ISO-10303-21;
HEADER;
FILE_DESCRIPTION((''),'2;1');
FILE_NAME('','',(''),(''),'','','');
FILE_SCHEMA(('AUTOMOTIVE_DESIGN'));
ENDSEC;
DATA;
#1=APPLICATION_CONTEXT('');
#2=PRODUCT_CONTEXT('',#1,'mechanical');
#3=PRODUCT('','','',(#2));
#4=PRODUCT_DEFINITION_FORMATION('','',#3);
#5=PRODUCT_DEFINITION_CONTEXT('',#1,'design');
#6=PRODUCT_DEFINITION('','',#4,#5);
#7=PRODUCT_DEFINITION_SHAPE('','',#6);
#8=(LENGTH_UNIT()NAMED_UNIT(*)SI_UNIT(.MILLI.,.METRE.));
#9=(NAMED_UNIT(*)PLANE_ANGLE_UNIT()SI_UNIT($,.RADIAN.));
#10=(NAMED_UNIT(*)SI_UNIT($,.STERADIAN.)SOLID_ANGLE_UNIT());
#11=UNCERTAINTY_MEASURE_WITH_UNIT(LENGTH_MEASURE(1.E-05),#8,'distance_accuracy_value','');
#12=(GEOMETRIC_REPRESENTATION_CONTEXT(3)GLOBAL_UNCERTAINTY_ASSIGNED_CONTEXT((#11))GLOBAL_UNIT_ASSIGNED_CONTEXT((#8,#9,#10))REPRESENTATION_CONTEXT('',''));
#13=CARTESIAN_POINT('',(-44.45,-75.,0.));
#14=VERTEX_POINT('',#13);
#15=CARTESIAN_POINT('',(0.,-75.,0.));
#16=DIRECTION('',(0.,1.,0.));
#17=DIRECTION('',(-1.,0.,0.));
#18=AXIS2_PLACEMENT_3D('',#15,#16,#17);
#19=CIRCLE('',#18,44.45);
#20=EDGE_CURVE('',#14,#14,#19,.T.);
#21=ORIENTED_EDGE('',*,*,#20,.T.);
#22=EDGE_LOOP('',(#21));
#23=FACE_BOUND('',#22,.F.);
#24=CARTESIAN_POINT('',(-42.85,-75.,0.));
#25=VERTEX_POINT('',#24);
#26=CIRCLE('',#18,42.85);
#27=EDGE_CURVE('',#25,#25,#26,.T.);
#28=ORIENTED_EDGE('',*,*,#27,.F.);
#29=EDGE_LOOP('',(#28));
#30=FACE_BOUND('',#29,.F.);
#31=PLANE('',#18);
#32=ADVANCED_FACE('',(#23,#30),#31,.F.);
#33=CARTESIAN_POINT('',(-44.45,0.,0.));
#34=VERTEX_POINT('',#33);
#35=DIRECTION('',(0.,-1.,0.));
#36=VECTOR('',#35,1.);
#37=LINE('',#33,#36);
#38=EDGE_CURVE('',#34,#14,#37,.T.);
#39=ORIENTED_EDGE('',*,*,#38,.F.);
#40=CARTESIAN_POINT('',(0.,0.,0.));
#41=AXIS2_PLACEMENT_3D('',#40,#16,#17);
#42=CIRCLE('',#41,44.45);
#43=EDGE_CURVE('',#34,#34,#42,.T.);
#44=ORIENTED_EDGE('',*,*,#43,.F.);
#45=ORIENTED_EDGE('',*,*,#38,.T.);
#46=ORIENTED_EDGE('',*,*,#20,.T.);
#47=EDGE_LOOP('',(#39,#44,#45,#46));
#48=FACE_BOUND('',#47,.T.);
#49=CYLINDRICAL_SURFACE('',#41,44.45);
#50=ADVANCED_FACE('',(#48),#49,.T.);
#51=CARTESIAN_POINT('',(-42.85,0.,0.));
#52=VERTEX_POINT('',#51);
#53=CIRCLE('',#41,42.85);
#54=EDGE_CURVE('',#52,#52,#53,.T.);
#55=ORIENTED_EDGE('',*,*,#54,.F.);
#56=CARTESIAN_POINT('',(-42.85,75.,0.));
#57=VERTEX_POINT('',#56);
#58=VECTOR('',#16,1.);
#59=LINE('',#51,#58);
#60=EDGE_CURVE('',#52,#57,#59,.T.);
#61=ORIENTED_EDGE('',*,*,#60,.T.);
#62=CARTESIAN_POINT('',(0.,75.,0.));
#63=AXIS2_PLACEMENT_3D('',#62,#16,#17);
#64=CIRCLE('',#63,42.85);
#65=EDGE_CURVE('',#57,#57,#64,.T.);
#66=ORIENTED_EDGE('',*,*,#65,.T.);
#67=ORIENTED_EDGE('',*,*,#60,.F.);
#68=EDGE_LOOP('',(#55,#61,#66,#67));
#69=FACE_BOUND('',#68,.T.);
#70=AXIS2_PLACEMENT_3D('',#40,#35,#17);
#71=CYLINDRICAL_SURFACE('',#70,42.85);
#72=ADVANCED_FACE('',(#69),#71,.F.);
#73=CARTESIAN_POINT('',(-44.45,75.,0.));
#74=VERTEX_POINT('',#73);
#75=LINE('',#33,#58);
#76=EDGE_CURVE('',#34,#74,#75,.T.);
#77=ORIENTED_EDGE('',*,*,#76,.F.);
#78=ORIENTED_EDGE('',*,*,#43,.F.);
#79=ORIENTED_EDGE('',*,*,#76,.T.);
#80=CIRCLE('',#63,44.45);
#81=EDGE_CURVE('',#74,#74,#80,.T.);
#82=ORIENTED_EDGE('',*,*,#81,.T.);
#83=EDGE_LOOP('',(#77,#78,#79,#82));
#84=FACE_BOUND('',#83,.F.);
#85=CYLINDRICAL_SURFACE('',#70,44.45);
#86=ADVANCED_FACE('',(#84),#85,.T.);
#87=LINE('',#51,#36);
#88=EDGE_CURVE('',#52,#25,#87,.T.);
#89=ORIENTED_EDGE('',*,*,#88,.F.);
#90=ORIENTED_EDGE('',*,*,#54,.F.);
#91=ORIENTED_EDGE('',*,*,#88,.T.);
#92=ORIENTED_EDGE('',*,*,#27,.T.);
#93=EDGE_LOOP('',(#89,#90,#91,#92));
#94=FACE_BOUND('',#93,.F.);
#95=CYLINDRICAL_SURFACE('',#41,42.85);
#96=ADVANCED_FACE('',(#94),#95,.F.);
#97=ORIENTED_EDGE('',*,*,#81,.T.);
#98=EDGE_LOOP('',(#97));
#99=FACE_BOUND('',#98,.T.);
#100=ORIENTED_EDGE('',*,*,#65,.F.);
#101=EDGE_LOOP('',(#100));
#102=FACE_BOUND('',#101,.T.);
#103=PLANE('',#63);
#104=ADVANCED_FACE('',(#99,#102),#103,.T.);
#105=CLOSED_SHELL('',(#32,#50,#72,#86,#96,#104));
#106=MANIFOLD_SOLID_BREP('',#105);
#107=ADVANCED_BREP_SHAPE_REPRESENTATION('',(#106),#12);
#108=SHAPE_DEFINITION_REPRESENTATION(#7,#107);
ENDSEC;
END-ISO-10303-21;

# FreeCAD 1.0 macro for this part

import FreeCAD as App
import Part
import Sketcher

doc = App.newDocument("Part")
body = doc.addObject("PartDesign::Body", "Body")

sketch1 = body.newObject("Sketcher::SketchObject", "Sketch")
sketch1.AttachmentSupport = (doc.getObject("XZ_Plane"), [""])
sketch1.MapMode = "FlatFace"
sketch1.addGeometry([
    Part.Circle(App.Vector(0, 0, 0), App.Vector(0, 0, 1), 44.45),
    Part.Circle(App.Vector(0, 0, 0), App.Vector(0, 0, 1), 42.85),
], False)
sketch1.addConstraint([
    Sketcher.Constraint("Coincident", 0, 3, -1, 1),
    Sketcher.Constraint("Coincident", 1, 3, -1, 1),
    Sketcher.Constraint("Diameter", 0, 88.9),
    Sketcher.Constraint("Diameter", 1, 85.7),
])
pad1 = body.newObject("PartDesign::Pad", "Pad")
pad1.Profile = sketch1
pad1.Length = 150
pad1.Midplane = True

doc.recompute()
